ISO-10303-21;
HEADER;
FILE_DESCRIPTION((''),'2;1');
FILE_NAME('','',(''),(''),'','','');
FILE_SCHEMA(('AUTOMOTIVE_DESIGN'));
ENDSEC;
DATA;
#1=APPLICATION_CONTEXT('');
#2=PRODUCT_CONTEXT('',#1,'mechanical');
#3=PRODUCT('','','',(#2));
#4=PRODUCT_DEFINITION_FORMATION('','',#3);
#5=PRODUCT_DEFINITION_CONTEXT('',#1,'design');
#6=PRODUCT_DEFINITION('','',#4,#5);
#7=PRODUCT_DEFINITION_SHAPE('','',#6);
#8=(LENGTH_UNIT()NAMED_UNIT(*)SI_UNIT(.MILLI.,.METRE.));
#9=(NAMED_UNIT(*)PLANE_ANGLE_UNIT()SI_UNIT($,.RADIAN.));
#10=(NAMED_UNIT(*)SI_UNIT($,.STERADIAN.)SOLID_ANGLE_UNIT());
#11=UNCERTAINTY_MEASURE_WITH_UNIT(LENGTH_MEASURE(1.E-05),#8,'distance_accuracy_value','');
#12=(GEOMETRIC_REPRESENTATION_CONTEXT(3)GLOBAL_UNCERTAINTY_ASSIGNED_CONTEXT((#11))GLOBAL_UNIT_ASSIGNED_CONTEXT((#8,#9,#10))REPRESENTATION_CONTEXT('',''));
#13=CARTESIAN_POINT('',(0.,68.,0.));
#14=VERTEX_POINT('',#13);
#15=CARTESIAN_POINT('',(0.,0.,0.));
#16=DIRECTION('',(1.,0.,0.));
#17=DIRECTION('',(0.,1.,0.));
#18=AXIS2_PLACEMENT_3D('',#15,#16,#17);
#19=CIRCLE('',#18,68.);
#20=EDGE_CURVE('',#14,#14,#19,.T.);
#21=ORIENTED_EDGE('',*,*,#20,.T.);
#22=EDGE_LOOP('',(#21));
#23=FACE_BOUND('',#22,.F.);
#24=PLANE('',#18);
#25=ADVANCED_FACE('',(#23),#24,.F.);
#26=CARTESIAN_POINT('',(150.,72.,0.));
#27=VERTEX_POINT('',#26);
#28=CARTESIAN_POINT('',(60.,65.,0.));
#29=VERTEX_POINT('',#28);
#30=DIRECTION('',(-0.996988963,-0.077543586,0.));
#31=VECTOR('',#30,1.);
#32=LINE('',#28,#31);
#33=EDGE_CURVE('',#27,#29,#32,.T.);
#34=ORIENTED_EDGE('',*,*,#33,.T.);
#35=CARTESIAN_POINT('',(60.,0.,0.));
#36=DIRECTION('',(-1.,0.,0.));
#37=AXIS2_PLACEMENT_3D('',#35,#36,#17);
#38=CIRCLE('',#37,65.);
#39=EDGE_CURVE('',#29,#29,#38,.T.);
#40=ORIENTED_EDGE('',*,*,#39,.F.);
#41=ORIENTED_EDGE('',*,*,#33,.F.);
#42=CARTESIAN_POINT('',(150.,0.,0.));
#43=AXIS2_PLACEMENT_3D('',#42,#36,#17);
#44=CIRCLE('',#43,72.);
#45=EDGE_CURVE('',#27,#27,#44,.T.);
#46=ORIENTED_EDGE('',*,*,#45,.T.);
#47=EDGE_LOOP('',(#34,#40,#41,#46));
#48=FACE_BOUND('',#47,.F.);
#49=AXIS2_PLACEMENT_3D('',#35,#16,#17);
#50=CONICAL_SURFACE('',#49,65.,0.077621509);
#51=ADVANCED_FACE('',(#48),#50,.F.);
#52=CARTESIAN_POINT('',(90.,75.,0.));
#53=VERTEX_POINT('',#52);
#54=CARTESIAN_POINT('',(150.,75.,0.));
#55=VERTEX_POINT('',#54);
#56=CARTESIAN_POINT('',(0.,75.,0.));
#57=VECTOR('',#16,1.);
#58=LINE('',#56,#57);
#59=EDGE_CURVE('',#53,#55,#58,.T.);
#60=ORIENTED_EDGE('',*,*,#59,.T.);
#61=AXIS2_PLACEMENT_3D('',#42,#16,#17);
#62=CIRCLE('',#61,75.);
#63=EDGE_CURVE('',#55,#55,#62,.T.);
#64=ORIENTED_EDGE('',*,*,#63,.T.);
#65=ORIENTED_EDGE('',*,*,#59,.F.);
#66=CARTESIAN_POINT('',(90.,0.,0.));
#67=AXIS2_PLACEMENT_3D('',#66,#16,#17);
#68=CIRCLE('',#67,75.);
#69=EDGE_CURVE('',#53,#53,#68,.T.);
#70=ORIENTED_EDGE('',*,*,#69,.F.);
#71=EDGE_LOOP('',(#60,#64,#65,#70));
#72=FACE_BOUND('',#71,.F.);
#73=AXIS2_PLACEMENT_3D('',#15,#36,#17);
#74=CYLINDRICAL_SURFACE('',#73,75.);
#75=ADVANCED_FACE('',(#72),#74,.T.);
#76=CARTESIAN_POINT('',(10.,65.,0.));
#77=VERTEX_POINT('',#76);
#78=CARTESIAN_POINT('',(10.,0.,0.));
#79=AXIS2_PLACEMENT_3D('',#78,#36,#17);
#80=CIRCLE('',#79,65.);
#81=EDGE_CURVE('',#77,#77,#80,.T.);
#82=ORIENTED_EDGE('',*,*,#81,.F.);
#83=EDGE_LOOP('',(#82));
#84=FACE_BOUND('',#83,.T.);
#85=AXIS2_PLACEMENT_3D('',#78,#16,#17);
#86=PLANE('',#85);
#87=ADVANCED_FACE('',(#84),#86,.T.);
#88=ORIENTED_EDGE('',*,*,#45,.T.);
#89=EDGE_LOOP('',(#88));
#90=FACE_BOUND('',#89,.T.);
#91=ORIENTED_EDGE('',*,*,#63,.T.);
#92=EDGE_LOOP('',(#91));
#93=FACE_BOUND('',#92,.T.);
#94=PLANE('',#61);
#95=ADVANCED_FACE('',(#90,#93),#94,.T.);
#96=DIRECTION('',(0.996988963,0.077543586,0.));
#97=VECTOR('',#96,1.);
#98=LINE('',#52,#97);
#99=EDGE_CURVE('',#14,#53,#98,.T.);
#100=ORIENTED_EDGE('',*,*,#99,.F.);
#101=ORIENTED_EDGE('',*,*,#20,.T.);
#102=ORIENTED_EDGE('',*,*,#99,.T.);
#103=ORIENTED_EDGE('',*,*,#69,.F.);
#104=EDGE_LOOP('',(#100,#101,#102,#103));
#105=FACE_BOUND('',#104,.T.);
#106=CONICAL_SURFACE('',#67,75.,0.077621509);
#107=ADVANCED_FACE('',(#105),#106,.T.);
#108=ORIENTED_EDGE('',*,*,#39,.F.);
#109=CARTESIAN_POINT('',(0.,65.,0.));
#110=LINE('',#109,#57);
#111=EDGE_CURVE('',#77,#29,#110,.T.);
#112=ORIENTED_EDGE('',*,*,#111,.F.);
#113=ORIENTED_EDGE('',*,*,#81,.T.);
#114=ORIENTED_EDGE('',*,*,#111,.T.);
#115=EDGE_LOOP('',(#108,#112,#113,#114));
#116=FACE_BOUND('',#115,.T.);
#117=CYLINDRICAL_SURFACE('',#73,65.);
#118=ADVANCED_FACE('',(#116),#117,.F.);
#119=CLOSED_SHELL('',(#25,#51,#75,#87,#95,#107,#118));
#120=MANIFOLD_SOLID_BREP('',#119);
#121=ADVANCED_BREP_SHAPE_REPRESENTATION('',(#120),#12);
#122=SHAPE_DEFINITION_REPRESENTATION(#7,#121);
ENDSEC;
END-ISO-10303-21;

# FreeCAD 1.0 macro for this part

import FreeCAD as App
import Part
import Sketcher

V = App.Vector


def edges_at(feature, points):
    """Names of the edges that pass closest to the given points."""
    edges = feature.Shape.Edges
    near = lambda p: min(range(len(edges)), key=lambda i: edges[i].distToShape(Part.Vertex(*p))[0])
    return sorted({f"Edge{near(p) + 1}" for p in points})


def faces_at(feature, points):
    """Names of the faces that lie closest to the given points."""
    faces = feature.Shape.Faces
    near = lambda p: min(range(len(faces)), key=lambda i: faces[i].distToShape(Part.Vertex(*p))[0])
    return sorted({f"Face{near(p) + 1}" for p in points})

doc = App.newDocument("Part")
body = doc.addObject("PartDesign::Body", "Body")

# Sketch on YZ plane
sketch1 = doc.addObject("Sketcher::SketchObject", "Sketch")
body.addObject(sketch1)
sketch1.AttachmentSupport = (doc.YZ_Plane, [""])
sketch1.MapMode = "FlatFace"
sketch1.addGeometry(Part.Circle(V(0, 0, 0), V(0, 0, 1), 75), False)
sketch1.addConstraint([
    Sketcher.Constraint("Coincident", 0, 3, -1, 1),
    Sketcher.Constraint("Diameter", 0, 150.0),
])
pad1 = doc.addObject("PartDesign::Pad", "Pad")
body.addObject(pad1)
pad1.Profile = sketch1
pad1.Length = 150
doc.recompute()

thickness = doc.addObject("PartDesign::Thickness", "Thickness")
body.addObject(thickness)
thickness.Base = (pad1, faces_at(pad1, [(150, 17.721, 28.023)]))
thickness.Value = 10
thickness.Reversed = True
thickness.Join = "Intersection"
doc.recompute()

chamfer = doc.addObject("PartDesign::Chamfer", "Chamfer")
body.addObject(chamfer)
chamfer.Base = (thickness, edges_at(thickness, [(150, -65, 0)]))
chamfer.ChamferType = "Two distances"
chamfer.Size = 7
chamfer.Size2 = 90
doc.recompute()

chamfer2 = doc.addObject("PartDesign::Chamfer", "Chamfer001")
body.addObject(chamfer2)
chamfer2.Base = (chamfer, edges_at(chamfer, [(0, -75, 0)]))
chamfer2.ChamferType = "Two distances"
chamfer2.Size = 7
chamfer2.Size2 = 90
chamfer2.FlipDirection = True

doc.recompute()
